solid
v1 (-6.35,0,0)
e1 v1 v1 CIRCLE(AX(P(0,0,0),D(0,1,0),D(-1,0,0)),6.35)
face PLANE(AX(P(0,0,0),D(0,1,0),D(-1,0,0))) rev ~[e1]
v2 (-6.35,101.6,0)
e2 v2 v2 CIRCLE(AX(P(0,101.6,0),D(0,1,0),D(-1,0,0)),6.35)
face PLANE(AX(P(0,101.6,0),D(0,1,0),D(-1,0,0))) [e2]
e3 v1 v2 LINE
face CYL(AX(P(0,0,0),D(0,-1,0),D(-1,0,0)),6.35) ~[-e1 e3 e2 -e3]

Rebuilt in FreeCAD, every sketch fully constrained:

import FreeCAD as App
import Part
import Sketcher

V = App.Vector
Q = App.Units.Quantity

doc = App.newDocument("Part")
params = doc.addObject("Spreadsheet::Sheet", "Params")
for row, (alias, value) in enumerate([
    ("sketch1_diameter", "0.5 in"),
    ("pad1_length", "4 in"),
], start=1):
    params.set(f"A{row}", alias)
    params.set(f"B{row}", "=" + value)
    params.setAlias(f"B{row}", alias)

body = doc.addObject("PartDesign::Body", "Body")

# Sketch on XZ plane
sketch1 = body.newObject("Sketcher::SketchObject", "Sketch")
sketch1.AttachmentSupport = (doc.getObject("XZ_Plane"), [""])
sketch1.MapMode = "FlatFace"
sketch1.addGeometry(Part.Circle(V(0, 0, 0), V(0, 0, 1), 6), False)
sketch1.addConstraint([
    Sketcher.Constraint("Coincident", 0, 3, -1, 1),
    Sketcher.Constraint("Diameter", 0, Q("0.5 in")),
])
sketch1.setExpression("Constraints[1]", "Params.sketch1_diameter")
pad1 = body.newObject("PartDesign::Pad", "Pad")
pad1.Profile = sketch1
pad1.setExpression("Length", "Params.pad1_length")
pad1.Reversed = True

doc.recompute()
